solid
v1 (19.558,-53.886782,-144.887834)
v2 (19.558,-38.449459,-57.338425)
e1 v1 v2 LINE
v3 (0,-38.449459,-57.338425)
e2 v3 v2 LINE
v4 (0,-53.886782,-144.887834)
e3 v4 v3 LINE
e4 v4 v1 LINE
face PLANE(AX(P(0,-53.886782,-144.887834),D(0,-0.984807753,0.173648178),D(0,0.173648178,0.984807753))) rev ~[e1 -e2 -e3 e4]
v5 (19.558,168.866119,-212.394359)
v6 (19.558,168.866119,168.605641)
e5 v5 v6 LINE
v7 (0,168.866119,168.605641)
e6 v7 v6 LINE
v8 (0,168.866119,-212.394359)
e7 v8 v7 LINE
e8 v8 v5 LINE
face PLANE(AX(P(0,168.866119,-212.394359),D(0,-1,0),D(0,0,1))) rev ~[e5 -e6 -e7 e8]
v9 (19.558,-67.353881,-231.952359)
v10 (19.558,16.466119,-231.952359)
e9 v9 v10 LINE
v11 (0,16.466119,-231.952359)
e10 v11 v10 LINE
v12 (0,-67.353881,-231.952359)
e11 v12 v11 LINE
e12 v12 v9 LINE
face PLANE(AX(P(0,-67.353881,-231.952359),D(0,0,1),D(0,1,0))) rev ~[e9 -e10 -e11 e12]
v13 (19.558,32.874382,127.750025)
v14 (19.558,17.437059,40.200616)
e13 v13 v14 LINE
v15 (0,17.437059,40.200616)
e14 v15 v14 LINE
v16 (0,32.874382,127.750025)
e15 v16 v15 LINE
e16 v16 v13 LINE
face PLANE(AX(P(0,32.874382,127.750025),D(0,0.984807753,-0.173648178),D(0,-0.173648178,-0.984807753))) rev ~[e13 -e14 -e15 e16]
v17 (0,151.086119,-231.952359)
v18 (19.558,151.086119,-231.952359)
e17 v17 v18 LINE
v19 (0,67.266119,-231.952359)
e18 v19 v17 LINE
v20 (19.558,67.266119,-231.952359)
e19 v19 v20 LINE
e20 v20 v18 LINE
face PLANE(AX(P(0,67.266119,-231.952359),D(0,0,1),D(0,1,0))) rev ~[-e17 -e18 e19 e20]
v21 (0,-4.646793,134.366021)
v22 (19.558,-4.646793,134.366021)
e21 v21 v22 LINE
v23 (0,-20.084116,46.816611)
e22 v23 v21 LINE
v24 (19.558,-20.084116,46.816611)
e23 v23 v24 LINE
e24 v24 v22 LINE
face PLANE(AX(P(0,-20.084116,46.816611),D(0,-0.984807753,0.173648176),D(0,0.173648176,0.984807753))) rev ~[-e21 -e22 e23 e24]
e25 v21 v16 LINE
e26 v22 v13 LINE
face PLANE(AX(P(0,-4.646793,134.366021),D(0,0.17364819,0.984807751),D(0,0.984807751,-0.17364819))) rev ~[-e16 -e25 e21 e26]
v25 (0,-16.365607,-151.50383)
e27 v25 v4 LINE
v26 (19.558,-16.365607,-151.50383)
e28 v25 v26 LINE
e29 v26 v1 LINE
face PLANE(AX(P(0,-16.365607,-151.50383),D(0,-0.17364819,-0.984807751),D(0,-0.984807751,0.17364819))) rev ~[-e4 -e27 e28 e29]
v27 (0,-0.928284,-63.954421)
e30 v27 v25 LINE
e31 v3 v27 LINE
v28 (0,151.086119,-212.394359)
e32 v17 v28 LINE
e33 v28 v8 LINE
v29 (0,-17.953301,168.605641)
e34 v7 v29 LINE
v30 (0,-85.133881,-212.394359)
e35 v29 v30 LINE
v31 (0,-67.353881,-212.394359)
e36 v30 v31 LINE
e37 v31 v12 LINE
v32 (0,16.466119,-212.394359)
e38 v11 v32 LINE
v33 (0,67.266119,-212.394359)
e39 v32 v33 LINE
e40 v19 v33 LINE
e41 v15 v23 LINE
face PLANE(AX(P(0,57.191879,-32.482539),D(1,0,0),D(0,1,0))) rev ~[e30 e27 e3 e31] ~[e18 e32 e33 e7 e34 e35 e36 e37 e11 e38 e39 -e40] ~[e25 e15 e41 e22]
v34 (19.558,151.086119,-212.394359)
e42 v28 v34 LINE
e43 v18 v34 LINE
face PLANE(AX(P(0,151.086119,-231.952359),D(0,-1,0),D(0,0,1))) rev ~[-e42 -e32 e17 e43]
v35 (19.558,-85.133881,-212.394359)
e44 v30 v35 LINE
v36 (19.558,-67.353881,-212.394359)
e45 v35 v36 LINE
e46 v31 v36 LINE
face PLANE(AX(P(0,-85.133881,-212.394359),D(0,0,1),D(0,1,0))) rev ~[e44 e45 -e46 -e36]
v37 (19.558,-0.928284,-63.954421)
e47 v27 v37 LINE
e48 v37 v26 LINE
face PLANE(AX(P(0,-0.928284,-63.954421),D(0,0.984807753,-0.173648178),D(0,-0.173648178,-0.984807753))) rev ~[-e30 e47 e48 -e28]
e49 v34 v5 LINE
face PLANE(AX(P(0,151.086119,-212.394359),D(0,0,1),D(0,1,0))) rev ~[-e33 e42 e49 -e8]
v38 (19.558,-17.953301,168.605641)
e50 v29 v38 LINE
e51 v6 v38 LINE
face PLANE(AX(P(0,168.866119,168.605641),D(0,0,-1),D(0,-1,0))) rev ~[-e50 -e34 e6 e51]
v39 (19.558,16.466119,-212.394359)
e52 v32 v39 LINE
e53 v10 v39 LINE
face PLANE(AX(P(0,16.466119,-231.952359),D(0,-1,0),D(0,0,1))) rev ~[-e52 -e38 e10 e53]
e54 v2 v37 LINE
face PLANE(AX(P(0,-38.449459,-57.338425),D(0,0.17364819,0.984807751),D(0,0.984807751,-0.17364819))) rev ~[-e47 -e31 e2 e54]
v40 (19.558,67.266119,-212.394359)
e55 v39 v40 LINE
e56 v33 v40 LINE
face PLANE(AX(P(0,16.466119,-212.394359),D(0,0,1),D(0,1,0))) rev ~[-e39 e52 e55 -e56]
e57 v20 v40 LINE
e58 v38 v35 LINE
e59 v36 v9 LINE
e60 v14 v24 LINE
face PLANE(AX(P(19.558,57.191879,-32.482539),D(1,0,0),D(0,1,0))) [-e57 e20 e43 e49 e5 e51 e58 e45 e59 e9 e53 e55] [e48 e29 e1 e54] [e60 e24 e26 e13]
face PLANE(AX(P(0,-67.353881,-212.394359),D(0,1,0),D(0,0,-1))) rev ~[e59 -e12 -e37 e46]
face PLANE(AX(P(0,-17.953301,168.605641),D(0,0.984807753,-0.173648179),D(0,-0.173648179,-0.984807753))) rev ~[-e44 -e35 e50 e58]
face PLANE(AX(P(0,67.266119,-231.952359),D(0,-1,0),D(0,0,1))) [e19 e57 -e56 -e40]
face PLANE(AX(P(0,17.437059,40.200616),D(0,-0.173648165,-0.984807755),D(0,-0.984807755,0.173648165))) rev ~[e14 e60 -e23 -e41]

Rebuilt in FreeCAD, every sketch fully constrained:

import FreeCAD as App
import Part
import Sketcher

V = App.Vector
Q = App.Units.Quantity

doc = App.newDocument("Part")
body = doc.addObject("PartDesign::Body", "Body")

# Sketch on YZ plane
sketch1 = doc.addObject("Sketcher::SketchObject", "Sketch")
body.addObject(sketch1)
sketch1.AttachmentSupport = (doc.YZ_Plane, [""])
sketch1.MapMode = "FlatFace"
sketch1.addGeometry([
    Part.LineSegment(V(-17.953301, 168.605641, 0), V(-85.133881, -212.394359, 0)),  # 0
    Part.LineSegment(V(-85.133881, -212.394359, 0), V(-67.353881, -212.394359, 0)),  # 1
    Part.LineSegment(V(-67.353881, -212.394359, 0), V(-67.353881, -231.952359, 0)),  # 2
    Part.LineSegment(V(-67.353881, -231.952359, 0), V(16.466119, -231.952359, 0)),  # 3
    Part.LineSegment(V(16.466119, -231.952359, 0), V(16.466119, -212.394359, 0)),  # 4
    Part.LineSegment(V(16.466119, -212.394359, 0), V(67.266119, -212.394359, 0)),  # 5
    Part.LineSegment(V(67.266119, -212.394359, 0), V(67.266119, -231.952359, 0)),  # 6
    Part.LineSegment(V(67.266119, -231.952359, 0), V(151.086119, -231.952359, 0)),  # 7
    Part.LineSegment(V(151.086119, -231.952359, 0), V(151.086119, -212.394359, 0)),  # 8
    Part.LineSegment(V(151.086119, -212.394359, 0), V(168.866119, -212.394359, 0)),  # 9
    Part.LineSegment(V(168.866119, -212.394359, 0), V(168.866119, 168.605641, 0)),  # 10
    Part.LineSegment(V(168.866119, 168.605641, 0), V(-17.953301, 168.605641, 0)),  # 11
    Part.LineSegment(V(-38.449459, -57.338425, 0), V(-0.928284, -63.954421, 0)),  # 12
    Part.LineSegment(V(-0.928284, -63.954421, 0), V(-16.365607, -151.50383, 0)),  # 13
    Part.LineSegment(V(-16.365607, -151.50383, 0), V(-53.886782, -144.887834, 0)),  # 14
    Part.LineSegment(V(-53.886782, -144.887834, 0), V(-38.449459, -57.338425, 0)),  # 15
    Part.LineSegment(V(-4.646793, 134.366021, 0), V(32.874382, 127.750025, 0)),  # 16
    Part.LineSegment(V(32.874382, 127.750025, 0), V(17.437059, 40.200616, 0)),  # 17
    Part.LineSegment(V(17.437059, 40.200616, 0), V(-20.084116, 46.816611, 0)),  # 18
    Part.LineSegment(V(-20.084116, 46.816611, 0), V(-4.646793, 134.366021, 0)),  # 19
], False)
sketch1.addConstraint([
    Sketcher.Constraint("Coincident", 0, 2, 1, 1),
    Sketcher.Constraint("Coincident", 1, 2, 2, 1),
    Sketcher.Constraint("Coincident", 2, 2, 3, 1),
    Sketcher.Constraint("Coincident", 3, 2, 4, 1),
    Sketcher.Constraint("Coincident", 4, 2, 5, 1),
    Sketcher.Constraint("Coincident", 5, 2, 6, 1),
    Sketcher.Constraint("Coincident", 6, 2, 7, 1),
    Sketcher.Constraint("Coincident", 7, 2, 8, 1),
    Sketcher.Constraint("Coincident", 8, 2, 9, 1),
    Sketcher.Constraint("Coincident", 9, 2, 10, 1),
    Sketcher.Constraint("Coincident", 10, 2, 11, 1),
    Sketcher.Constraint("Coincident", 11, 2, 0, 1),
    Sketcher.Constraint("Coincident", 12, 2, 13, 1),
    Sketcher.Constraint("Coincident", 13, 2, 14, 1),
    Sketcher.Constraint("Coincident", 14, 2, 15, 1),
    Sketcher.Constraint("Coincident", 15, 2, 12, 1),
    Sketcher.Constraint("Coincident", 16, 2, 17, 1),
    Sketcher.Constraint("Coincident", 17, 2, 18, 1),
    Sketcher.Constraint("Coincident", 18, 2, 19, 1),
    Sketcher.Constraint("Coincident", 19, 2, 16, 1),
    Sketcher.Constraint("Horizontal", 1),
    Sketcher.Constraint("Vertical", 2),
    Sketcher.Constraint("Horizontal", 3),
    Sketcher.Constraint("Vertical", 4),
    Sketcher.Constraint("Horizontal", 5),
    Sketcher.Constraint("Vertical", 6),
    Sketcher.Constraint("Horizontal", 7),
    Sketcher.Constraint("Vertical", 8),
    Sketcher.Constraint("Horizontal", 9),
    Sketcher.Constraint("Vertical", 10),
    Sketcher.Constraint("Horizontal", 11),
    Sketcher.Constraint("Perpendicular", 0, 12),
    Sketcher.Constraint("Perpendicular", 12, 13),
    Sketcher.Constraint("Perpendicular", 13, 14),
    Sketcher.Constraint("Perpendicular", 14, 15),
    Sketcher.Constraint("Perpendicular", 15, 16),
    Sketcher.Constraint("Perpendicular", 16, 17),
    Sketcher.Constraint("Perpendicular", 17, 18),
    Sketcher.Constraint("Perpendicular", 18, 19),
    Sketcher.Constraint("Horizontal", 1, 2, 4, 2),
    Sketcher.Constraint("Horizontal", 3, 2, 6, 2),
    Sketcher.Constraint("Horizontal", 5, 2, 8, 2),
    Sketcher.Constraint("Equal", 3, 7),
    Sketcher.Constraint("Equal", 1, 9),
    Sketcher.Constraint("Equal", 14, 16),
    Sketcher.Constraint("Equal", 15, 17),
    Sketcher.Constraint("DistanceX", 5, 1, 5, 2, Q("2 in")),
    Sketcher.Constraint("DistanceY", 10, 1, 10, 2, Q("15 in")),
    Sketcher.Constraint("DistanceX", 1, 1, 1, 2, Q("0.7 in")),
    Sketcher.Constraint("DistanceX", 3, 1, 3, 2, Q("3.3 in")),
    Sketcher.Constraint("Angle", 0, Q("-100 deg")),
    Sketcher.Constraint("Distance", 12, Q("1.5 in")),
    Sketcher.Constraint("Distance", 13, Q("3.5 in")),
    Sketcher.Constraint("DistanceY", 2, 2, 2, 1, Q("0.77 in")),
    Sketcher.Constraint("DistanceX", 11, 2, -1, 1, 17.953301),
    Sketcher.Constraint("DistanceX", 1, 2, 14, 2, 13.467099),
    Sketcher.Constraint("DistanceY", 0, 2, -1, 1, 212.394359),
    Sketcher.Constraint("DistanceY", 12, 2, -1, 1, 63.954421),
    Sketcher.Constraint("DistanceX", -1, 1, 16, 2, 32.874382),
    Sketcher.Constraint("DistanceY", -1, 1, 18, 2, 46.816611),
])
pad1 = doc.addObject("PartDesign::Pad", "Pad")
body.addObject(pad1)
pad1.Profile = sketch1
pad1.Length = Q("0.77 in")

doc.recompute()
